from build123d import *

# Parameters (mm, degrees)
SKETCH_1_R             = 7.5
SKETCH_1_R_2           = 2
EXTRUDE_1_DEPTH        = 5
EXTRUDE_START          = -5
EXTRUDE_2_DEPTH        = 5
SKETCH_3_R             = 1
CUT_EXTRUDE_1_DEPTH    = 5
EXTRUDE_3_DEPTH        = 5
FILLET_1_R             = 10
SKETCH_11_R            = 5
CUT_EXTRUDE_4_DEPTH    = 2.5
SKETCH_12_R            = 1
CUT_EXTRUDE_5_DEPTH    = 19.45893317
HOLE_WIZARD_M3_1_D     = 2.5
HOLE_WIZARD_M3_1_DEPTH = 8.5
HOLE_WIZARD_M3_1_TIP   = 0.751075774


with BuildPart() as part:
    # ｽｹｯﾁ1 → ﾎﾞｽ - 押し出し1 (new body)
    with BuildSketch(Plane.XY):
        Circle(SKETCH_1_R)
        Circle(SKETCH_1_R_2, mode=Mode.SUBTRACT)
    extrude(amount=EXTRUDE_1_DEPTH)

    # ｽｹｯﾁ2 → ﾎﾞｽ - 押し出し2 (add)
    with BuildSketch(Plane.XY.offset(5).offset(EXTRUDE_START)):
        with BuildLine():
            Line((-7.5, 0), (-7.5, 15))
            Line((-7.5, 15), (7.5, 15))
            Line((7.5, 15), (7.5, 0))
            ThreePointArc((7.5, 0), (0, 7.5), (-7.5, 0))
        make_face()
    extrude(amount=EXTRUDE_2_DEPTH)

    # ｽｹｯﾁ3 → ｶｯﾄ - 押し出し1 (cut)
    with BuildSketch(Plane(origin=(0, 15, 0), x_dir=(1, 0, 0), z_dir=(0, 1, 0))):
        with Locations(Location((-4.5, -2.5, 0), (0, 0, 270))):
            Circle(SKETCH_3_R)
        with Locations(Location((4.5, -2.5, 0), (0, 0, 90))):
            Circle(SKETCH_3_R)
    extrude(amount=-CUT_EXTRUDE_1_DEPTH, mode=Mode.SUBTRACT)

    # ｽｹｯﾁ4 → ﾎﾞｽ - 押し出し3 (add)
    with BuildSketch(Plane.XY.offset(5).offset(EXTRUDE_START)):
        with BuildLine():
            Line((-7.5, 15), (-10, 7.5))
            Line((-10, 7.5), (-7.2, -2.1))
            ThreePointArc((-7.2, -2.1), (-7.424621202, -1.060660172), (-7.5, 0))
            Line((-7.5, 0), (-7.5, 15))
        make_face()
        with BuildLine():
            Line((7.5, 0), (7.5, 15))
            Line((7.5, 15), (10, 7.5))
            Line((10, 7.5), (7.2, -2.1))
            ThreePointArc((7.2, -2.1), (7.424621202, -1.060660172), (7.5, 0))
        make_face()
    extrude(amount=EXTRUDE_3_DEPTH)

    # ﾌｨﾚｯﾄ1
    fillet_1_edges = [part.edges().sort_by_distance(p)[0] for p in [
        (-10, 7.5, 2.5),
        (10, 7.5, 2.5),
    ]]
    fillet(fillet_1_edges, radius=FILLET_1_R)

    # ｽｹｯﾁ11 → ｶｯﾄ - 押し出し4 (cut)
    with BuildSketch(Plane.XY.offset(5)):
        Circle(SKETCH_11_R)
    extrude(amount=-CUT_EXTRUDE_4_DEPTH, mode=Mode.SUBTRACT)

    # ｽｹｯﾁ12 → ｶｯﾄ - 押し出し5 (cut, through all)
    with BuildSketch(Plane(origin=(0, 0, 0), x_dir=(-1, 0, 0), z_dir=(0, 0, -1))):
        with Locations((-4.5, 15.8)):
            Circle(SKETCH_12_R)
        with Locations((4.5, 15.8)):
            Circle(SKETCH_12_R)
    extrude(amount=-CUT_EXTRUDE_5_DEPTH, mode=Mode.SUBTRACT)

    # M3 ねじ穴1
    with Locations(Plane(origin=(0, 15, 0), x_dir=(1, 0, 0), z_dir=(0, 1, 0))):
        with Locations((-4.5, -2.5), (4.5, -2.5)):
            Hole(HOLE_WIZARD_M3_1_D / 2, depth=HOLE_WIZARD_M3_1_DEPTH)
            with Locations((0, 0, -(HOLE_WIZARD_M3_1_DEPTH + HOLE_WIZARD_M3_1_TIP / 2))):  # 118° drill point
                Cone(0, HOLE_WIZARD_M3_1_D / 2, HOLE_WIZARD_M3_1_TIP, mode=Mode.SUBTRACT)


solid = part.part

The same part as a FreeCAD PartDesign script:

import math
import FreeCAD as App
import Part
import Sketcher

V = App.Vector


def edges_at(feature, points):
    """Names of the edges that pass closest to the given points."""
    edges = feature.Shape.Edges
    near = lambda p: min(range(len(edges)), key=lambda i: edges[i].distToShape(Part.Vertex(*p))[0])
    return sorted({f"Edge{near(p) + 1}" for p in points})

doc = App.newDocument("Part")
body = doc.addObject("PartDesign::Body", "Body")

# Sketch on XY plane
sketch1 = doc.addObject("Sketcher::SketchObject", "Sketch")
body.addObject(sketch1)
sketch1.AttachmentSupport = (doc.XY_Plane, [""])
sketch1.MapMode = "FlatFace"
sketch1.addGeometry([
    Part.Circle(V(0, 0, 0), V(0, 0, 1), 7.5),
    Part.Circle(V(0, 0, 0), V(0, 0, 1), 2),
], False)
sketch1.addConstraint([
    Sketcher.Constraint("Coincident", 0, 3, -1, 1),
    Sketcher.Constraint("Coincident", 1, 3, -1, 1),
    Sketcher.Constraint("Diameter", 0, 15.0),
    Sketcher.Constraint("Diameter", 1, 4.0),
])
pad1 = doc.addObject("PartDesign::Pad", "Pad")
body.addObject(pad1)
pad1.Profile = sketch1
pad1.Length = 5

# Sketch on XY plane
sketch2 = doc.addObject("Sketcher::SketchObject", "Sketch001")
body.addObject(sketch2)
sketch2.AttachmentSupport = (doc.XY_Plane, [""])
sketch2.MapMode = "FlatFace"
sketch2.addGeometry([
    Part.LineSegment(V(-7.5, 15, 0), V(-7.5, 0, 0)),
    Part.ArcOfCircle(Part.Circle(V(0, 0, 0), V(0, 0, 1), 7.5), math.radians(0), math.radians(180)),
    Part.LineSegment(V(7.5, 0, 0), V(7.5, 15, 0)),
    Part.LineSegment(V(7.5, 15, 0), V(-7.5, 15, 0)),
], False)
sketch2.addConstraint([
    Sketcher.Constraint("Tangent", 0, 2, 1, 2),
    Sketcher.Constraint("Tangent", 1, 1, 2, 1),
    Sketcher.Constraint("Coincident", 2, 2, 3, 1),
    Sketcher.Constraint("Coincident", 3, 2, 0, 1),
    Sketcher.Constraint("Vertical", 0),
    Sketcher.Constraint("Vertical", 2),
    Sketcher.Constraint("Horizontal", 3),
    Sketcher.Constraint("Coincident", 1, 3, -1, 1),
    Sketcher.Constraint("Equal", 3, 0),
    Sketcher.Constraint("Radius", 1, 7.5),
])
pad2 = doc.addObject("PartDesign::Pad", "Pad001")
body.addObject(pad2)
pad2.Profile = sketch2
pad2.Length = 5

# Sketch on XZ plane
sketch3 = doc.addObject("Sketcher::SketchObject", "Sketch002")
body.addObject(sketch3)
sketch3.AttachmentSupport = (doc.XZ_Plane, [""])
sketch3.MapMode = "FlatFace"
sketch3.AttachmentOffset = App.Placement(V(0, 0, -15), App.Rotation())
sketch3.addGeometry([
    Part.Circle(V(-4.5, 2.5, 0), V(0, 0, 1), 1),
    Part.Circle(V(4.5, 2.5, 0), V(0, 0, 1), 1),
], False)
sketch3.addConstraint([
    Sketcher.Constraint("Equal", 0, 1),
    Sketcher.Constraint("Symmetric", 0, 3, 1, 3, -2),
    Sketcher.Constraint("Diameter", 0, 2.0),
    Sketcher.Constraint("DistanceX", 0, 3, 1, 3, 9.0),
    Sketcher.Constraint("DistanceY", -1, 1, 0, 3, 2.5),
])
pocket1 = doc.addObject("PartDesign::Pocket", "Pocket")
body.addObject(pocket1)
pocket1.Profile = sketch3
pocket1.Length = 5
pocket1.Reversed = True

# Sketch on XY plane
sketch4 = doc.addObject("Sketcher::SketchObject", "Sketch003")
body.addObject(sketch4)
sketch4.AttachmentSupport = (doc.XY_Plane, [""])
sketch4.MapMode = "FlatFace"
sketch4.addGeometry([
    Part.LineSegment(V(-7.5, 15, 0), V(-10, 7.5, 0)),  # 0
    Part.LineSegment(V(-10, 7.5, 0), V(-7.2, -2.1, 0)),  # 1
    Part.ArcOfCircle(Part.Circle(V(0, 0, 0), V(0, 0, 1), 7.5), math.radians(-180), math.radians(-163.739795)),  # 2
    Part.LineSegment(V(-7.5, 0, 0), V(-7.5, 15, 0)),  # 3
    Part.LineSegment(V(7.5, 15, 0), V(7.5, 0, 0)),  # 4
    Part.ArcOfCircle(Part.Circle(V(0, 0, 0), V(0, 0, 1), 7.5), math.radians(-16.260205), math.radians(0)),  # 5
    Part.LineSegment(V(7.2, -2.1, 0), V(10, 7.5, 0)),  # 6
    Part.LineSegment(V(10, 7.5, 0), V(7.5, 15, 0)),  # 7
], False)
sketch4.addConstraint([
    Sketcher.Constraint("Coincident", 0, 2, 1, 1),
    Sketcher.Constraint("Tangent", 1, 2, 2, 2),
    Sketcher.Constraint("Tangent", 2, 1, 3, 1),
    Sketcher.Constraint("Coincident", 3, 2, 0, 1),
    Sketcher.Constraint("Tangent", 4, 2, 5, 2),
    Sketcher.Constraint("Tangent", 5, 1, 6, 1),
    Sketcher.Constraint("Coincident", 6, 2, 7, 1),
    Sketcher.Constraint("Coincident", 7, 2, 4, 1),
    Sketcher.Constraint("Vertical", 3),
    Sketcher.Constraint("Vertical", 4),
    Sketcher.Constraint("Coincident", 2, 3, -1, 1),
    Sketcher.Constraint("Coincident", 5, 3, -1, 1),
    Sketcher.Constraint("Equal", 2, 5),
    Sketcher.Constraint("Symmetric", 0, 2, 6, 2, -2),
    Sketcher.Constraint("Horizontal", 3, 2, 7, 2),
    Sketcher.Constraint("Radius", 2, 7.5),
    Sketcher.Constraint("DistanceY", 3, 1, 3, 2, 15.0),
    Sketcher.Constraint("Distance", 1, 10.0),
    Sketcher.Constraint("DistanceX", 0, 2, -1, 1, 10.0),
])
pad3 = doc.addObject("PartDesign::Pad", "Pad002")
body.addObject(pad3)
pad3.Profile = sketch4
pad3.Length = 5
doc.recompute()

fillet = doc.addObject("PartDesign::Fillet", "Fillet")
body.addObject(fillet)
fillet.Base = (pad3, edges_at(pad3, [(-10, 7.5, 2.5), (10, 7.5, 2.5)]))
fillet.Radius = 10

# Sketch on XY plane
sketch5 = doc.addObject("Sketcher::SketchObject", "Sketch004")
body.addObject(sketch5)
sketch5.AttachmentSupport = (doc.XY_Plane, [""])
sketch5.MapMode = "FlatFace"
sketch5.AttachmentOffset = App.Placement(V(0, 0, 5), App.Rotation())
sketch5.addGeometry(Part.Circle(V(0, 0, 0), V(0, 0, 1), 5), False)
sketch5.addConstraint([
    Sketcher.Constraint("Coincident", 0, 3, -1, 1),
    Sketcher.Constraint("Diameter", 0, 10.0),
])
pocket2 = doc.addObject("PartDesign::Pocket", "Pocket001")
body.addObject(pocket2)
pocket2.Profile = sketch5
pocket2.Length = 2.5

# Sketch on XY plane
sketch6 = doc.addObject("Sketcher::SketchObject", "Sketch005")
body.addObject(sketch6)
sketch6.AttachmentSupport = (doc.XY_Plane, [""])
sketch6.MapMode = "FlatFace"
sketch6.addGeometry([
    Part.Circle(V(4.5, 15.8, 0), V(0, 0, 1), 1),
    Part.Circle(V(-4.5, 15.8, 0), V(0, 0, 1), 1),
], False)
sketch6.addConstraint([
    Sketcher.Constraint("Equal", 0, 1),
    Sketcher.Constraint("Symmetric", 0, 3, 1, 3, -2),
    Sketcher.Constraint("Diameter", 0, 2.0),
    Sketcher.Constraint("DistanceX", 1, 3, 0, 3, 9.0),
    Sketcher.Constraint("DistanceY", -1, 1, 0, 3, 15.8),
])
pocket3 = doc.addObject("PartDesign::Pocket", "Pocket002")
body.addObject(pocket3)
pocket3.Profile = sketch6
pocket3.Type = "ThroughAll"
pocket3.Reversed = True

# Sketch on XZ plane
sketch7 = doc.addObject("Sketcher::SketchObject", "Sketch006")
body.addObject(sketch7)
sketch7.AttachmentSupport = (doc.XZ_Plane, [""])
sketch7.MapMode = "FlatFace"
sketch7.AttachmentOffset = App.Placement(V(0, 0, -15), App.Rotation())
sketch7.addGeometry([
    Part.Circle(V(-4.5, 2.5, 0), V(0, 0, 1), 1.25),
    Part.Circle(V(4.5, 2.5, 0), V(0, 0, 1), 1.25),
], False)
sketch7.addConstraint([
    Sketcher.Constraint("Equal", 0, 1),
    Sketcher.Constraint("Symmetric", 0, 3, 1, 3, -2),
    Sketcher.Constraint("Diameter", 0, 2.5),
    Sketcher.Constraint("DistanceX", 0, 3, 1, 3, 9.0),
    Sketcher.Constraint("DistanceY", -1, 1, 0, 3, 2.5),
])
doc.recompute()
hole = doc.addObject("PartDesign::Hole", "Hole")
body.addObject(hole)
hole.Profile = sketch7
hole.ThreadType = "None"
hole.Diameter = 2.5
hole.DepthType = "Dimension"
hole.Depth = 8.5
hole.DrillPoint = "Angled"
hole.DrillPointAngle = 118
hole.Reversed = True

doc.recompute()
